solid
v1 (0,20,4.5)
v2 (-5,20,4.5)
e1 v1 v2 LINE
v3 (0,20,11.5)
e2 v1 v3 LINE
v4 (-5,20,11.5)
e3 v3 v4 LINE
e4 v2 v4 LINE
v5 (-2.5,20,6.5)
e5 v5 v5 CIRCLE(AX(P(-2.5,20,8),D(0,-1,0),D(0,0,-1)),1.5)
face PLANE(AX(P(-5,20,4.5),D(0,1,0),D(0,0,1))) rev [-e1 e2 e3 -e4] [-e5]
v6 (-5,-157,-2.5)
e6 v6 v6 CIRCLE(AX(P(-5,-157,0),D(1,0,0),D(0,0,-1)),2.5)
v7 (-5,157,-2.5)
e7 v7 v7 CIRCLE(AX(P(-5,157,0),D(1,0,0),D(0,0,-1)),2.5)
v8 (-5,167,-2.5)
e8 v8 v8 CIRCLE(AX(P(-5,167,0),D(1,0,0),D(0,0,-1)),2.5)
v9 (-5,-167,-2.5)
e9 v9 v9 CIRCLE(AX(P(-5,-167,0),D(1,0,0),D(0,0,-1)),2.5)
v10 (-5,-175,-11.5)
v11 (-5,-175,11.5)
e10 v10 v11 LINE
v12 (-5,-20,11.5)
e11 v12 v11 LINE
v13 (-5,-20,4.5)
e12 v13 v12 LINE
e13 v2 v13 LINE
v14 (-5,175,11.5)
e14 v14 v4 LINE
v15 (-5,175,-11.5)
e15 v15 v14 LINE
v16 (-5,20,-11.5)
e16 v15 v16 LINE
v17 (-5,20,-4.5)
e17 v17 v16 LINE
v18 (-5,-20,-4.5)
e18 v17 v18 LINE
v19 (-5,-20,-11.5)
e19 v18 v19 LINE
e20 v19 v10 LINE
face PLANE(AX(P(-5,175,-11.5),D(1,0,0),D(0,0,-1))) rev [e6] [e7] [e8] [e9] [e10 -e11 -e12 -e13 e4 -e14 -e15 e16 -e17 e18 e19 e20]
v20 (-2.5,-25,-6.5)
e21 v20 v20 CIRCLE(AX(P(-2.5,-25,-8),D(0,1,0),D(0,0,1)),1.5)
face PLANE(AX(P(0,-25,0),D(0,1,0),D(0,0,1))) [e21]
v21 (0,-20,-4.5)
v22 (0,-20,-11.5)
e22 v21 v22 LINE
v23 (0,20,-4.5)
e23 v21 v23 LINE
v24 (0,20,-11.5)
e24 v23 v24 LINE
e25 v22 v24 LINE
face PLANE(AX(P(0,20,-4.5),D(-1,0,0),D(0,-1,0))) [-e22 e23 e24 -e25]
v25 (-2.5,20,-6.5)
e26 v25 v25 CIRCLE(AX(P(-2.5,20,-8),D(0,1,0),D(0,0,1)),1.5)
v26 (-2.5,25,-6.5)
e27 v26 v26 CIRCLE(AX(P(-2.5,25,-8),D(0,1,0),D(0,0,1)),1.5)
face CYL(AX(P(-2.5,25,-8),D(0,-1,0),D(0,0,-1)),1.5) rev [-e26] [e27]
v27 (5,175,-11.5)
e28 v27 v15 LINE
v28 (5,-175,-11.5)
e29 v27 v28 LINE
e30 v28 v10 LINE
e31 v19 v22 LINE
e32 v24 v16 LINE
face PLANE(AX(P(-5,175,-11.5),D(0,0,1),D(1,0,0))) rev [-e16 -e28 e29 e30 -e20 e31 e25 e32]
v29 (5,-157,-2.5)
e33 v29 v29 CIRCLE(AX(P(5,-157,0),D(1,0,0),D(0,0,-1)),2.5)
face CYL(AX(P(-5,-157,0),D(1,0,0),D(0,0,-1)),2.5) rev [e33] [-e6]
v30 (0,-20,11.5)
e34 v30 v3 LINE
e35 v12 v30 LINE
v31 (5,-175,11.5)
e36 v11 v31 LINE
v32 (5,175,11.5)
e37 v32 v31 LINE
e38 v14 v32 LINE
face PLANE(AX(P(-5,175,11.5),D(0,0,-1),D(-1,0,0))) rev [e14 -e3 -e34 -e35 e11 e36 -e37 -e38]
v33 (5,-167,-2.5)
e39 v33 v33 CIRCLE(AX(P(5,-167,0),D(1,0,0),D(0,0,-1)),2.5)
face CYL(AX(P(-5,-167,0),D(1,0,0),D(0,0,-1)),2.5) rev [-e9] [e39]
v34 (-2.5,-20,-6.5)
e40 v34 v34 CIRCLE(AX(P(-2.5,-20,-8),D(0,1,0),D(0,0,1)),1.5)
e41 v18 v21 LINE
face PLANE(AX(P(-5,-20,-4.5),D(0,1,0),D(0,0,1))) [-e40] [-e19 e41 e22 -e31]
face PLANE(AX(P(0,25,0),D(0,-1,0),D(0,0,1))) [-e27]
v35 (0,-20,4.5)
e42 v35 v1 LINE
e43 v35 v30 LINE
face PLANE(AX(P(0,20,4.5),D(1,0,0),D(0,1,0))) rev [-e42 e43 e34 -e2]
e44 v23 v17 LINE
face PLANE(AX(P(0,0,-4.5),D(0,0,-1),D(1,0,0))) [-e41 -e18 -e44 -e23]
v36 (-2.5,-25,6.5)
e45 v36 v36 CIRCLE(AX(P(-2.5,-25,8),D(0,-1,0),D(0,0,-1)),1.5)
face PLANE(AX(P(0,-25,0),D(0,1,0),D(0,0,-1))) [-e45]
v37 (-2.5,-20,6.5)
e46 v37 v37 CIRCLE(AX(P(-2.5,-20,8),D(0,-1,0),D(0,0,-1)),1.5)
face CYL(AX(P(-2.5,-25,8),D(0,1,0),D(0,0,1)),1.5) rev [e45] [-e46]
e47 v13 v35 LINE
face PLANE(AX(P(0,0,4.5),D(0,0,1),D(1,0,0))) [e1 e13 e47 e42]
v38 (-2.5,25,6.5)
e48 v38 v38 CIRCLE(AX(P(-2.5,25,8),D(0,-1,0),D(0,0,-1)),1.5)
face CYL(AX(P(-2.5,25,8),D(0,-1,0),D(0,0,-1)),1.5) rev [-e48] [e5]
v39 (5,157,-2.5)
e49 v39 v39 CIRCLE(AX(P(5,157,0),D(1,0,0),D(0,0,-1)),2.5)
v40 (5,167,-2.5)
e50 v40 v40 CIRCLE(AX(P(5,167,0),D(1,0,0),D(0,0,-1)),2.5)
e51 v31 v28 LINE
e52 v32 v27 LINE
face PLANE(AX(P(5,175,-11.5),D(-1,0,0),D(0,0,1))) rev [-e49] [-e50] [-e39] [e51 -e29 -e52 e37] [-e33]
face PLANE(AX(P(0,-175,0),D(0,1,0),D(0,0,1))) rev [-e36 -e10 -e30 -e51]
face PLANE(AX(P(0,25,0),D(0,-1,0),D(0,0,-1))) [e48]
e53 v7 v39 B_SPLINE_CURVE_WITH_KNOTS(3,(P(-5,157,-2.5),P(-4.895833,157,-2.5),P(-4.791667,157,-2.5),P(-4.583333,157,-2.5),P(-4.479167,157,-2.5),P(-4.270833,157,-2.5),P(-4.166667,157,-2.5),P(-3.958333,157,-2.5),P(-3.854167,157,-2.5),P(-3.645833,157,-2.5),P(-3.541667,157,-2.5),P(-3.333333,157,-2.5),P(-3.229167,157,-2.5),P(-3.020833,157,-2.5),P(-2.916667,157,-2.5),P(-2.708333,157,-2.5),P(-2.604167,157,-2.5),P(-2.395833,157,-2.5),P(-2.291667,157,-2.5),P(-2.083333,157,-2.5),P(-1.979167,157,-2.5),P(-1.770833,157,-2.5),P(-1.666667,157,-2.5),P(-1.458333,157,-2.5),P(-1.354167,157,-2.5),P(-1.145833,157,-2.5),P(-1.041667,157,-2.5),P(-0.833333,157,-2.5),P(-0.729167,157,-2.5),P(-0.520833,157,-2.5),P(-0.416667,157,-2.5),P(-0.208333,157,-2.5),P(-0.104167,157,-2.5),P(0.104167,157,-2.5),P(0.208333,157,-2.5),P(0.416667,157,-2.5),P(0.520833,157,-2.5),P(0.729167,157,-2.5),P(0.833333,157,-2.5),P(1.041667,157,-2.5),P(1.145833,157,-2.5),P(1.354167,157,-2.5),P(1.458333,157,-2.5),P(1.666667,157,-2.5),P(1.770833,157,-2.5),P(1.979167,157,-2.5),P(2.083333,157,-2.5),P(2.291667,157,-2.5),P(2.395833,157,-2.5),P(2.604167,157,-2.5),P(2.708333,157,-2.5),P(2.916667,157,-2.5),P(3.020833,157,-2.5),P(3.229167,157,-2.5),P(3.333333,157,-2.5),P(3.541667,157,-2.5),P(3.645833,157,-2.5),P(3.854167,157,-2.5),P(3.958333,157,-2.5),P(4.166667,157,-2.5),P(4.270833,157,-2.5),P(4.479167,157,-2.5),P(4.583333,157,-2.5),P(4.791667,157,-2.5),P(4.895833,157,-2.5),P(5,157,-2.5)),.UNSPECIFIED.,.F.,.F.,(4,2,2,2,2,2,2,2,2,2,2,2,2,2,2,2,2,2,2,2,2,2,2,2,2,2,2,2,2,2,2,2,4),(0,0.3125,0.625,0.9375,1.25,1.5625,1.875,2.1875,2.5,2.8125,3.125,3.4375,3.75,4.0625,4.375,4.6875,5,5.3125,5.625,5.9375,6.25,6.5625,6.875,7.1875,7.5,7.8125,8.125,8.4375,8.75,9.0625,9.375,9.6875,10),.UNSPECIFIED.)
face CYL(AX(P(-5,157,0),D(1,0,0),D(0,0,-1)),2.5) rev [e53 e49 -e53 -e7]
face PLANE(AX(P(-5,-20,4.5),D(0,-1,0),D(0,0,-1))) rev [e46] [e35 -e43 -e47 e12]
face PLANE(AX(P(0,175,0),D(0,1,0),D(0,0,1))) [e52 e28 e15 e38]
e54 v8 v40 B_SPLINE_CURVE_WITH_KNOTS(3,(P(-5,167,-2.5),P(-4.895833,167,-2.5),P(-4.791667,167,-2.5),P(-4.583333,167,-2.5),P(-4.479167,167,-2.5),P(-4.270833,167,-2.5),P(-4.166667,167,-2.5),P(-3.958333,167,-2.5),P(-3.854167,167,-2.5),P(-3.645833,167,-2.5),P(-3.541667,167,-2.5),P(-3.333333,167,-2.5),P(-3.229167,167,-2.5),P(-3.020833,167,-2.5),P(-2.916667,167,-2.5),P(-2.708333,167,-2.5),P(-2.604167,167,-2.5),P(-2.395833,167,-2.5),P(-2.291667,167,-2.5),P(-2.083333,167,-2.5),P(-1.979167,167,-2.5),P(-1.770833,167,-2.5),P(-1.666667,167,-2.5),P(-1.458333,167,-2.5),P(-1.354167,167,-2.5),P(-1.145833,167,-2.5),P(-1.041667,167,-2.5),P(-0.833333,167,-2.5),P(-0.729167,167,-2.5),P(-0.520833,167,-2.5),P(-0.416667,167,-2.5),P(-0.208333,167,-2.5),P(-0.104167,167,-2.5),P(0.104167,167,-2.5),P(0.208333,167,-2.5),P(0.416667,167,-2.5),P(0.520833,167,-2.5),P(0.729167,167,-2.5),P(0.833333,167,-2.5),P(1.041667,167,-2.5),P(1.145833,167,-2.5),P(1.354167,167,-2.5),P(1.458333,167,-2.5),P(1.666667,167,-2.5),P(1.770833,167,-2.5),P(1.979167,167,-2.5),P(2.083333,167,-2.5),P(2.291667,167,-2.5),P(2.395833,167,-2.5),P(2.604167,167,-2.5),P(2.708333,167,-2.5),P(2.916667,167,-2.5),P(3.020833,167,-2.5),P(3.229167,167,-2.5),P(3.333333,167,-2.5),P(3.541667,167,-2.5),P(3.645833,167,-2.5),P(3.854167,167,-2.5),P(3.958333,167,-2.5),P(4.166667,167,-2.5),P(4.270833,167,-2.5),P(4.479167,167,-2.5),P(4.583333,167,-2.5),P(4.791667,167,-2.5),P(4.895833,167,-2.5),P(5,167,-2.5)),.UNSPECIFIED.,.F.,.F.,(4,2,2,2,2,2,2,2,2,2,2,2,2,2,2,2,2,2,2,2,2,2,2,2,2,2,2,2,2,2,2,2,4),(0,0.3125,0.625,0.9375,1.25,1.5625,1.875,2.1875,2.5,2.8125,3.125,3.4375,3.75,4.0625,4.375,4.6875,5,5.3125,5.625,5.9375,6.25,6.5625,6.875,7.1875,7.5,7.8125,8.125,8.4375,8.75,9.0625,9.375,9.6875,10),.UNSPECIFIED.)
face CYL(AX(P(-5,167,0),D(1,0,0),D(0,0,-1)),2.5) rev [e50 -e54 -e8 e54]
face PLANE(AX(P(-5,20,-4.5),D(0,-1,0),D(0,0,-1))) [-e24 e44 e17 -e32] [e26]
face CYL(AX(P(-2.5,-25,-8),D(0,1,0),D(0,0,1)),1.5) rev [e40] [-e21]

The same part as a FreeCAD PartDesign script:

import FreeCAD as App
import Part
import Sketcher

V = App.Vector
Q = App.Units.Quantity


def add_polygon(sketch, points):
    """Adds a closed chain of lines whose ends are joined by coincident constraints."""
    first, n = sketch.GeometryCount, len(points)
    for a, b in zip(points, points[1:] + points[:1]):
        sketch.addGeometry(Part.LineSegment(App.Vector(*a, 0), App.Vector(*b, 0)), False)
    for i in range(n):
        sketch.addConstraint(Sketcher.Constraint("Coincident", first + i, 2, first + (i + 1) % n, 1))

doc = App.newDocument("Part")
params = doc.addObject("Spreadsheet::Sheet", "Params")
for row, (alias, value) in enumerate([
    ("sketch1_width", "10 mm"),
    ("sketch1_height", "23 mm"),
    ("pad1_length", "350 mm"),
    ("sketch2_diameter", "5 mm"),
    ("sketch3_diameter", "5 mm"),
    ("sketch4_width", "5 mm"),
    ("sketch4_height", "40 mm"),
    ("pocket3_length", "7 mm"),
    ("sketch5_diameter", "3 mm"),
    ("pocket4_length", "5 mm"),
    ("sketch6_diameter", "3 mm"),
    ("pocket5_length", "5 mm"),
], start=1):
    params.set(f"A{row}", alias)
    params.set(f"B{row}", "=" + value)
    params.setAlias(f"B{row}", alias)

body = doc.addObject("PartDesign::Body", "Body")

# Sketch on XZ plane
sketch1 = body.newObject("Sketcher::SketchObject", "Sketch")
sketch1.AttachmentSupport = (doc.getObject("XZ_Plane"), [""])
sketch1.MapMode = "FlatFace"
add_polygon(sketch1, [(-5, -12), (-5, 12), (5, 12), (5, -12)])  # lines 0-3
sketch1.addConstraint(Sketcher.Constraint("Vertical", 0))
sketch1.addConstraint(Sketcher.Constraint("Horizontal", 1))
sketch1.addConstraint(Sketcher.Constraint("Vertical", 2))
sketch1.addConstraint(Sketcher.Constraint("Horizontal", 3))
sketch1.addConstraint(Sketcher.Constraint("Symmetric", 0, 2, 2, 2, -1, 1))
sketch1.addConstraint(Sketcher.Constraint("DistanceX", 1, 1, 1, 2, Q("10 mm")))
sketch1.addConstraint(Sketcher.Constraint("DistanceY", 0, 1, 0, 2, Q("23 mm")))
sketch1.setExpression("Constraints[9]", "Params.sketch1_width")
sketch1.setExpression("Constraints[10]", "Params.sketch1_height")
pad1 = body.newObject("PartDesign::Pad", "Pad")
pad1.Profile = sketch1
pad1.setExpression("Length", "Params.pad1_length")
pad1.Midplane = True

# Sketch on YZ plane
sketch2 = body.newObject("Sketcher::SketchObject", "Sketch001")
sketch2.AttachmentSupport = (doc.getObject("YZ_Plane"), [""])
sketch2.MapMode = "FlatFace"
sketch2.AttachmentOffset = App.Placement(V(0, 0, 5), App.Rotation())
sketch2.addGeometry(Part.Circle(V(167, 0, 0), V(0, 0, 1), 2.5), False)
sketch2.addGeometry(Part.Circle(V(157, 0, 0), V(0, 0, 1), 2.5), False)
sketch2.addConstraint(Sketcher.Constraint("Equal", 0, 1))
sketch2.addConstraint(Sketcher.Constraint("PointOnObject", 0, 3, -1))
sketch2.addConstraint(Sketcher.Constraint("PointOnObject", 1, 3, -1))
sketch2.addConstraint(Sketcher.Constraint("Diameter", 0, Q("5 mm")))
sketch2.addConstraint(Sketcher.Constraint("DistanceX", -1, 1, 0, 3, Q("167 mm")))
sketch2.addConstraint(Sketcher.Constraint("DistanceX", -1, 1, 1, 3, Q("157 mm")))
sketch2.setExpression("Constraints[3]", "Params.sketch2_diameter")
pocket1 = body.newObject("PartDesign::Pocket", "Pocket")
pocket1.Profile = sketch2
pocket1.Type = "ThroughAll"

# Sketch on YZ plane
sketch3 = body.newObject("Sketcher::SketchObject", "Sketch002")
sketch3.AttachmentSupport = (doc.getObject("YZ_Plane"), [""])
sketch3.MapMode = "FlatFace"
sketch3.AttachmentOffset = App.Placement(V(0, 0, 5), App.Rotation())
sketch3.addGeometry(Part.Circle(V(-167, 0, 0), V(0, 0, 1), 2.5), False)
sketch3.addGeometry(Part.Circle(V(-157, 0, 0), V(0, 0, 1), 2.5), False)
sketch3.addConstraint(Sketcher.Constraint("Equal", 0, 1))
sketch3.addConstraint(Sketcher.Constraint("PointOnObject", 0, 3, -1))
sketch3.addConstraint(Sketcher.Constraint("PointOnObject", 1, 3, -1))
sketch3.addConstraint(Sketcher.Constraint("Diameter", 0, Q("5 mm")))
sketch3.addConstraint(Sketcher.Constraint("DistanceX", 0, 3, -1, 1, Q("167 mm")))
sketch3.addConstraint(Sketcher.Constraint("DistanceX", 1, 3, -1, 1, Q("157 mm")))
sketch3.setExpression("Constraints[3]", "Params.sketch3_diameter")
pocket2 = body.newObject("PartDesign::Pocket", "Pocket001")
pocket2.Profile = sketch3
pocket2.Type = "ThroughAll"

# Sketch on XY plane
sketch4 = body.newObject("Sketcher::SketchObject", "Sketch003")
sketch4.AttachmentSupport = (doc.getObject("XY_Plane"), [""])
sketch4.MapMode = "FlatFace"
sketch4.AttachmentOffset = App.Placement(V(0, 0, 11.5), App.Rotation())
add_polygon(sketch4, [(-5, 20), (-5, -20), (0, -20), (0, 20)])  # lines 0-3
sketch4.addConstraint(Sketcher.Constraint("Vertical", 0))
sketch4.addConstraint(Sketcher.Constraint("Horizontal", 1))
sketch4.addConstraint(Sketcher.Constraint("Vertical", 2))
sketch4.addConstraint(Sketcher.Constraint("Horizontal", 3))
sketch4.addConstraint(Sketcher.Constraint("Symmetric", 1, 2, 2, 2, -1, 1))
sketch4.addConstraint(Sketcher.Constraint("DistanceX", 1, 1, 1, 2, Q("5 mm")))
sketch4.addConstraint(Sketcher.Constraint("DistanceY", 0, 2, 0, 1, Q("40 mm")))
sketch4.setExpression("Constraints[9]", "Params.sketch4_width")
sketch4.setExpression("Constraints[10]", "Params.sketch4_height")
pocket3 = body.newObject("PartDesign::Pocket", "Pocket002")
pocket3.Profile = sketch4
pocket3.setExpression("Length", "Params.pocket3_length")

# Sketch on XZ plane
sketch5 = body.newObject("Sketcher::SketchObject", "Sketch004")
sketch5.AttachmentSupport = (doc.getObject("XZ_Plane"), [""])
sketch5.MapMode = "FlatFace"
sketch5.AttachmentOffset = App.Placement(V(0, 0, -20), App.Rotation())
sketch5.addGeometry(Part.Circle(V(-2.5, 8, 0), V(0, 0, 1), 1.5), False)
sketch5.addConstraint(Sketcher.Constraint("Diameter", 0, Q("3 mm")))
sketch5.addConstraint(Sketcher.Constraint("DistanceY", -1, 1, 0, 3, Q("8 mm")))
sketch5.addConstraint(Sketcher.Constraint("DistanceX", 0, 3, -1, 1, Q("2.5 mm")))
sketch5.setExpression("Constraints[0]", "Params.sketch5_diameter")
pocket4 = body.newObject("PartDesign::Pocket", "Pocket003")
pocket4.Profile = sketch5
pocket4.setExpression("Length", "Params.pocket4_length")
doc.recompute()

mirrored = body.newObject("PartDesign::Mirrored", "Mirrored")
mirrored.Originals = [pocket4]
mirrored.MirrorPlane = (doc.getObject("XZ_Plane"), [""])
body.Tip = mirrored
doc.recompute()

mirrored2 = body.newObject("PartDesign::Mirrored", "Mirrored001")
mirrored2.Originals = [pocket3, pocket4]
mirrored2.MirrorPlane = (doc.getObject("XY_Plane"), [""])
body.Tip = mirrored2

# Sketch on XZ plane
sketch6 = body.newObject("Sketcher::SketchObject", "Sketch005")
sketch6.AttachmentSupport = (doc.getObject("XZ_Plane"), [""])
sketch6.MapMode = "FlatFace"
sketch6.AttachmentOffset = App.Placement(V(0, 0, 20), App.Rotation())
sketch6.addGeometry(Part.Circle(V(-2.5, -8, 0), V(0, 0, 1), 1.5), False)
sketch6.addConstraint(Sketcher.Constraint("Diameter", 0, Q("3 mm")))
sketch6.addConstraint(Sketcher.Constraint("DistanceY", 0, 3, -1, 1, Q("8 mm")))
sketch6.addConstraint(Sketcher.Constraint("DistanceX", 0, 3, -1, 1, Q("2.5 mm")))
sketch6.setExpression("Constraints[0]", "Params.sketch6_diameter")
pocket5 = body.newObject("PartDesign::Pocket", "Pocket004")
pocket5.Profile = sketch6
pocket5.setExpression("Length", "Params.pocket5_length")
pocket5.Reversed = True

doc.recompute()
